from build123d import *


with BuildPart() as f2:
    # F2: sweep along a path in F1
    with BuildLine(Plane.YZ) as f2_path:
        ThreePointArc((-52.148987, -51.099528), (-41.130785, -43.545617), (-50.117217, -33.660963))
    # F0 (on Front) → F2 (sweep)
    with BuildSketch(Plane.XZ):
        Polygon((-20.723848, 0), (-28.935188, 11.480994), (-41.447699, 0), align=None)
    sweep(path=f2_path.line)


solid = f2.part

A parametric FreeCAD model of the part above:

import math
import FreeCAD as App
import Part
import Sketcher
Q = App.Units.Quantity

doc = App.newDocument("Part")
body = doc.addObject("PartDesign::Body", "Body")

sketch1 = body.newObject("Sketcher::SketchObject", "Sketch")
sketch1.AttachmentSupport = (doc.getObject("XZ_Plane"), [""])
sketch1.MapMode = "FlatFace"
sketch1.addGeometry([
    Part.LineSegment(App.Vector(-21, 0, 0), App.Vector(-29, 11, 0)),
    Part.LineSegment(App.Vector(-29, 11, 0), App.Vector(-41, 0, 0)),
    Part.LineSegment(App.Vector(-41, 0, 0), App.Vector(-21, 0, 0)),
], False)
sketch1.addConstraint([
    Sketcher.Constraint("Coincident", 0, 2, 1, 1),
    Sketcher.Constraint("Coincident", 1, 2, 2, 1),
    Sketcher.Constraint("Coincident", 2, 2, 0, 1),
    Sketcher.Constraint("Horizontal", 2),
    Sketcher.Constraint("PointOnObject", 1, 2, -1),
    Sketcher.Constraint("DistanceX", 2, 1, 2, 2, Q("20.723851 mm")),
    Sketcher.Constraint("DistanceX", 1, 2, -1, 1, Q("41.447699 mm")),
    Sketcher.Constraint("Distance", 1, Q("16.981642 mm")),
    Sketcher.Constraint("DistanceX", 0, 2, -1, 1, Q("28.935188 mm")),
])

sketch2 = body.newObject("Sketcher::SketchObject", "Sketch001")
sketch2.AttachmentSupport = (doc.getObject("YZ_Plane"), [""])
sketch2.MapMode = "FlatFace"
sketch2.addGeometry(Part.ArcOfCircle(Part.Circle(App.Vector(-50, -43, 0), App.Vector(0, 0, 1), 9), math.radians(-104), math.radians(91)), False)
sketch2.addConstraint([
    Sketcher.Constraint("Radius", 0, Q("8.86111 mm")),
    Sketcher.Constraint("DistanceX", 0, 1, 0, 3, Q("2.21663 mm")),
    Sketcher.Constraint("DistanceX", 0, 2, 0, 3, Q("0.18486 mm")),
    Sketcher.Constraint("DistanceX", 0, 3, -1, 1, Q("49.932357 mm")),
    Sketcher.Constraint("DistanceY", 0, 3, -1, 1, Q("42.520144 mm")),
])
doc.recompute()

additivepipe = body.newObject("PartDesign::AdditivePipe", "AdditivePipe")
additivepipe.Profile = sketch1
additivepipe.Spine = (sketch2, ["Edge1"])

doc.recompute()
